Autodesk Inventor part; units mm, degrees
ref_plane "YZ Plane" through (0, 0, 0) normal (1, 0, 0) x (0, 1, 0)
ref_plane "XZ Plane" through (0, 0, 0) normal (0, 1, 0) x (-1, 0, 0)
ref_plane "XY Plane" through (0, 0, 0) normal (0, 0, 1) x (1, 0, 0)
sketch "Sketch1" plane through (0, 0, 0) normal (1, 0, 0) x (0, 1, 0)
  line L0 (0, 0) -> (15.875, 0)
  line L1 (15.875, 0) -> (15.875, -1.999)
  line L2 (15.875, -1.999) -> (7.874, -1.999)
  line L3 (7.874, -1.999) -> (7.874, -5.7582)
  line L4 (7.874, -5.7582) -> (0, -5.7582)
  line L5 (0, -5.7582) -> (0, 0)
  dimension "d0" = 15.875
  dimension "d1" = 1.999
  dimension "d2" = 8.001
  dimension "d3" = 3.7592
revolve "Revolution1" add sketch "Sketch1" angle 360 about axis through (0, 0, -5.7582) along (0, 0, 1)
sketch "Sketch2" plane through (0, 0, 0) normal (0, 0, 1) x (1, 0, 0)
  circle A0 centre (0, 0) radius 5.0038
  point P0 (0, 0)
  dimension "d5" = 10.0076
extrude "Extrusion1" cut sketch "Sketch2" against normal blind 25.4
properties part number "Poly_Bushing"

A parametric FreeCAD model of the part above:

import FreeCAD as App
import Part
import Sketcher

V = App.Vector
Q = App.Units.Quantity

doc = App.newDocument("Part")
body = doc.addObject("PartDesign::Body", "Body")

# Sketch on YZ plane
sketch1 = body.newObject("Sketcher::SketchObject", "Sketch")
sketch1.AttachmentSupport = (doc.getObject("YZ_Plane"), [""])
sketch1.MapMode = "FlatFace"
sketch1.addGeometry(Part.LineSegment(V(15.875, 0, 0), V(0, 0, 0)), False)
sketch1.addGeometry(Part.LineSegment(V(0, 0, 0), V(0, -5.7582, 0)), False)
sketch1.addGeometry(Part.LineSegment(V(0, -5.7582, 0), V(7.874, -5.7582, 0)), False)
sketch1.addGeometry(Part.LineSegment(V(7.874, -5.7582, 0), V(7.874, -1.999, 0)), False)
sketch1.addGeometry(Part.LineSegment(V(7.874, -1.999, 0), V(15.875, -1.999, 0)), False)
sketch1.addGeometry(Part.LineSegment(V(15.875, -1.999, 0), V(15.875, 0, 0)), False)
sketch1.addConstraint(Sketcher.Constraint("Coincident", 0, 2, 1, 1))
sketch1.addConstraint(Sketcher.Constraint("Coincident", 1, 2, 2, 1))
sketch1.addConstraint(Sketcher.Constraint("Coincident", 2, 2, 3, 1))
sketch1.addConstraint(Sketcher.Constraint("Coincident", 3, 2, 4, 1))
sketch1.addConstraint(Sketcher.Constraint("Coincident", 4, 2, 5, 1))
sketch1.addConstraint(Sketcher.Constraint("Coincident", 5, 2, 0, 1))
sketch1.addConstraint(Sketcher.Constraint("Horizontal", 0))
sketch1.addConstraint(Sketcher.Constraint("Vertical", 1))
sketch1.addConstraint(Sketcher.Constraint("Horizontal", 2))
sketch1.addConstraint(Sketcher.Constraint("Vertical", 3))
sketch1.addConstraint(Sketcher.Constraint("Horizontal", 4))
sketch1.addConstraint(Sketcher.Constraint("Vertical", 5))
sketch1.addConstraint(Sketcher.Constraint("Coincident", 0, 2, -1, 1))
sketch1.addConstraint(Sketcher.Constraint("DistanceX", 0, 2, 0, 1, Q("0.625 in")))
sketch1.addConstraint(Sketcher.Constraint("DistanceX", 4, 1, 4, 2, Q("0.315 in")))
sketch1.addConstraint(Sketcher.Constraint("DistanceY", 3, 1, 3, 2, Q("0.148 in")))
sketch1.addConstraint(Sketcher.Constraint("DistanceY", 5, 1, 5, 2, Q("0.0787 in")))
revolution = body.newObject("PartDesign::Revolution", "Revolution")
revolution.Profile = sketch1
revolution.ReferenceAxis = (sketch1, ["V_Axis"])
revolution.Angle = 360

# Sketch on XY plane
sketch2 = body.newObject("Sketcher::SketchObject", "Sketch001")
sketch2.AttachmentSupport = (doc.getObject("XY_Plane"), [""])
sketch2.MapMode = "FlatFace"
sketch2.addGeometry(Part.Circle(V(0, 0, 0), V(0, 0, 1), 5.0038), False)
sketch2.addConstraint(Sketcher.Constraint("Coincident", 0, 3, -1, 1))
sketch2.addConstraint(Sketcher.Constraint("Diameter", 0, Q("0.394 in")))
pocket1 = body.newObject("PartDesign::Pocket", "Pocket")
pocket1.Profile = sketch2
pocket1.Length = Q("1 in")

doc.recompute()
